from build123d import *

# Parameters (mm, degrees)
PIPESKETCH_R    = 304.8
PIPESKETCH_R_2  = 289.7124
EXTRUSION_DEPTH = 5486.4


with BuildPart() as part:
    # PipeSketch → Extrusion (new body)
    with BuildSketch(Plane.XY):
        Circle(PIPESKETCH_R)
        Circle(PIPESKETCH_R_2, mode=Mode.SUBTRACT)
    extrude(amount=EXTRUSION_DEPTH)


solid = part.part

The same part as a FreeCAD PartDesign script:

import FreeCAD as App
import Part
import Sketcher
from FreeCAD import Vector
Q = App.Units.Quantity

doc = App.newDocument("Part")
body = doc.addObject("PartDesign::Body", "Body")

# Sketch on XY plane
sketch1 = body.newObject("Sketcher::SketchObject", "Sketch")
sketch1.AttachmentSupport = (doc.getObject("XY_Plane"), [""])
sketch1.MapMode = "FlatFace"
sketch1.addGeometry([
    Part.Circle(Vector(0, 0, 0), Vector(0, 0, 1), 305),
    Part.Circle(Vector(0, 0, 0), Vector(0, 0, 1), 290),
], False)
sketch1.addConstraint([
    Sketcher.Constraint("Coincident", 0, 3, -1, 1),
    Sketcher.Constraint("Coincident", 1, 3, -1, 1),
    Sketcher.Constraint("Diameter", 0, Q("24 in")),
    Sketcher.Constraint("Diameter", 1, Q("22.812 in")),
])
pad1 = body.newObject("PartDesign::Pad", "Pad")
pad1.Profile = sketch1
pad1.Length = Q("216 in")

doc.recompute()
